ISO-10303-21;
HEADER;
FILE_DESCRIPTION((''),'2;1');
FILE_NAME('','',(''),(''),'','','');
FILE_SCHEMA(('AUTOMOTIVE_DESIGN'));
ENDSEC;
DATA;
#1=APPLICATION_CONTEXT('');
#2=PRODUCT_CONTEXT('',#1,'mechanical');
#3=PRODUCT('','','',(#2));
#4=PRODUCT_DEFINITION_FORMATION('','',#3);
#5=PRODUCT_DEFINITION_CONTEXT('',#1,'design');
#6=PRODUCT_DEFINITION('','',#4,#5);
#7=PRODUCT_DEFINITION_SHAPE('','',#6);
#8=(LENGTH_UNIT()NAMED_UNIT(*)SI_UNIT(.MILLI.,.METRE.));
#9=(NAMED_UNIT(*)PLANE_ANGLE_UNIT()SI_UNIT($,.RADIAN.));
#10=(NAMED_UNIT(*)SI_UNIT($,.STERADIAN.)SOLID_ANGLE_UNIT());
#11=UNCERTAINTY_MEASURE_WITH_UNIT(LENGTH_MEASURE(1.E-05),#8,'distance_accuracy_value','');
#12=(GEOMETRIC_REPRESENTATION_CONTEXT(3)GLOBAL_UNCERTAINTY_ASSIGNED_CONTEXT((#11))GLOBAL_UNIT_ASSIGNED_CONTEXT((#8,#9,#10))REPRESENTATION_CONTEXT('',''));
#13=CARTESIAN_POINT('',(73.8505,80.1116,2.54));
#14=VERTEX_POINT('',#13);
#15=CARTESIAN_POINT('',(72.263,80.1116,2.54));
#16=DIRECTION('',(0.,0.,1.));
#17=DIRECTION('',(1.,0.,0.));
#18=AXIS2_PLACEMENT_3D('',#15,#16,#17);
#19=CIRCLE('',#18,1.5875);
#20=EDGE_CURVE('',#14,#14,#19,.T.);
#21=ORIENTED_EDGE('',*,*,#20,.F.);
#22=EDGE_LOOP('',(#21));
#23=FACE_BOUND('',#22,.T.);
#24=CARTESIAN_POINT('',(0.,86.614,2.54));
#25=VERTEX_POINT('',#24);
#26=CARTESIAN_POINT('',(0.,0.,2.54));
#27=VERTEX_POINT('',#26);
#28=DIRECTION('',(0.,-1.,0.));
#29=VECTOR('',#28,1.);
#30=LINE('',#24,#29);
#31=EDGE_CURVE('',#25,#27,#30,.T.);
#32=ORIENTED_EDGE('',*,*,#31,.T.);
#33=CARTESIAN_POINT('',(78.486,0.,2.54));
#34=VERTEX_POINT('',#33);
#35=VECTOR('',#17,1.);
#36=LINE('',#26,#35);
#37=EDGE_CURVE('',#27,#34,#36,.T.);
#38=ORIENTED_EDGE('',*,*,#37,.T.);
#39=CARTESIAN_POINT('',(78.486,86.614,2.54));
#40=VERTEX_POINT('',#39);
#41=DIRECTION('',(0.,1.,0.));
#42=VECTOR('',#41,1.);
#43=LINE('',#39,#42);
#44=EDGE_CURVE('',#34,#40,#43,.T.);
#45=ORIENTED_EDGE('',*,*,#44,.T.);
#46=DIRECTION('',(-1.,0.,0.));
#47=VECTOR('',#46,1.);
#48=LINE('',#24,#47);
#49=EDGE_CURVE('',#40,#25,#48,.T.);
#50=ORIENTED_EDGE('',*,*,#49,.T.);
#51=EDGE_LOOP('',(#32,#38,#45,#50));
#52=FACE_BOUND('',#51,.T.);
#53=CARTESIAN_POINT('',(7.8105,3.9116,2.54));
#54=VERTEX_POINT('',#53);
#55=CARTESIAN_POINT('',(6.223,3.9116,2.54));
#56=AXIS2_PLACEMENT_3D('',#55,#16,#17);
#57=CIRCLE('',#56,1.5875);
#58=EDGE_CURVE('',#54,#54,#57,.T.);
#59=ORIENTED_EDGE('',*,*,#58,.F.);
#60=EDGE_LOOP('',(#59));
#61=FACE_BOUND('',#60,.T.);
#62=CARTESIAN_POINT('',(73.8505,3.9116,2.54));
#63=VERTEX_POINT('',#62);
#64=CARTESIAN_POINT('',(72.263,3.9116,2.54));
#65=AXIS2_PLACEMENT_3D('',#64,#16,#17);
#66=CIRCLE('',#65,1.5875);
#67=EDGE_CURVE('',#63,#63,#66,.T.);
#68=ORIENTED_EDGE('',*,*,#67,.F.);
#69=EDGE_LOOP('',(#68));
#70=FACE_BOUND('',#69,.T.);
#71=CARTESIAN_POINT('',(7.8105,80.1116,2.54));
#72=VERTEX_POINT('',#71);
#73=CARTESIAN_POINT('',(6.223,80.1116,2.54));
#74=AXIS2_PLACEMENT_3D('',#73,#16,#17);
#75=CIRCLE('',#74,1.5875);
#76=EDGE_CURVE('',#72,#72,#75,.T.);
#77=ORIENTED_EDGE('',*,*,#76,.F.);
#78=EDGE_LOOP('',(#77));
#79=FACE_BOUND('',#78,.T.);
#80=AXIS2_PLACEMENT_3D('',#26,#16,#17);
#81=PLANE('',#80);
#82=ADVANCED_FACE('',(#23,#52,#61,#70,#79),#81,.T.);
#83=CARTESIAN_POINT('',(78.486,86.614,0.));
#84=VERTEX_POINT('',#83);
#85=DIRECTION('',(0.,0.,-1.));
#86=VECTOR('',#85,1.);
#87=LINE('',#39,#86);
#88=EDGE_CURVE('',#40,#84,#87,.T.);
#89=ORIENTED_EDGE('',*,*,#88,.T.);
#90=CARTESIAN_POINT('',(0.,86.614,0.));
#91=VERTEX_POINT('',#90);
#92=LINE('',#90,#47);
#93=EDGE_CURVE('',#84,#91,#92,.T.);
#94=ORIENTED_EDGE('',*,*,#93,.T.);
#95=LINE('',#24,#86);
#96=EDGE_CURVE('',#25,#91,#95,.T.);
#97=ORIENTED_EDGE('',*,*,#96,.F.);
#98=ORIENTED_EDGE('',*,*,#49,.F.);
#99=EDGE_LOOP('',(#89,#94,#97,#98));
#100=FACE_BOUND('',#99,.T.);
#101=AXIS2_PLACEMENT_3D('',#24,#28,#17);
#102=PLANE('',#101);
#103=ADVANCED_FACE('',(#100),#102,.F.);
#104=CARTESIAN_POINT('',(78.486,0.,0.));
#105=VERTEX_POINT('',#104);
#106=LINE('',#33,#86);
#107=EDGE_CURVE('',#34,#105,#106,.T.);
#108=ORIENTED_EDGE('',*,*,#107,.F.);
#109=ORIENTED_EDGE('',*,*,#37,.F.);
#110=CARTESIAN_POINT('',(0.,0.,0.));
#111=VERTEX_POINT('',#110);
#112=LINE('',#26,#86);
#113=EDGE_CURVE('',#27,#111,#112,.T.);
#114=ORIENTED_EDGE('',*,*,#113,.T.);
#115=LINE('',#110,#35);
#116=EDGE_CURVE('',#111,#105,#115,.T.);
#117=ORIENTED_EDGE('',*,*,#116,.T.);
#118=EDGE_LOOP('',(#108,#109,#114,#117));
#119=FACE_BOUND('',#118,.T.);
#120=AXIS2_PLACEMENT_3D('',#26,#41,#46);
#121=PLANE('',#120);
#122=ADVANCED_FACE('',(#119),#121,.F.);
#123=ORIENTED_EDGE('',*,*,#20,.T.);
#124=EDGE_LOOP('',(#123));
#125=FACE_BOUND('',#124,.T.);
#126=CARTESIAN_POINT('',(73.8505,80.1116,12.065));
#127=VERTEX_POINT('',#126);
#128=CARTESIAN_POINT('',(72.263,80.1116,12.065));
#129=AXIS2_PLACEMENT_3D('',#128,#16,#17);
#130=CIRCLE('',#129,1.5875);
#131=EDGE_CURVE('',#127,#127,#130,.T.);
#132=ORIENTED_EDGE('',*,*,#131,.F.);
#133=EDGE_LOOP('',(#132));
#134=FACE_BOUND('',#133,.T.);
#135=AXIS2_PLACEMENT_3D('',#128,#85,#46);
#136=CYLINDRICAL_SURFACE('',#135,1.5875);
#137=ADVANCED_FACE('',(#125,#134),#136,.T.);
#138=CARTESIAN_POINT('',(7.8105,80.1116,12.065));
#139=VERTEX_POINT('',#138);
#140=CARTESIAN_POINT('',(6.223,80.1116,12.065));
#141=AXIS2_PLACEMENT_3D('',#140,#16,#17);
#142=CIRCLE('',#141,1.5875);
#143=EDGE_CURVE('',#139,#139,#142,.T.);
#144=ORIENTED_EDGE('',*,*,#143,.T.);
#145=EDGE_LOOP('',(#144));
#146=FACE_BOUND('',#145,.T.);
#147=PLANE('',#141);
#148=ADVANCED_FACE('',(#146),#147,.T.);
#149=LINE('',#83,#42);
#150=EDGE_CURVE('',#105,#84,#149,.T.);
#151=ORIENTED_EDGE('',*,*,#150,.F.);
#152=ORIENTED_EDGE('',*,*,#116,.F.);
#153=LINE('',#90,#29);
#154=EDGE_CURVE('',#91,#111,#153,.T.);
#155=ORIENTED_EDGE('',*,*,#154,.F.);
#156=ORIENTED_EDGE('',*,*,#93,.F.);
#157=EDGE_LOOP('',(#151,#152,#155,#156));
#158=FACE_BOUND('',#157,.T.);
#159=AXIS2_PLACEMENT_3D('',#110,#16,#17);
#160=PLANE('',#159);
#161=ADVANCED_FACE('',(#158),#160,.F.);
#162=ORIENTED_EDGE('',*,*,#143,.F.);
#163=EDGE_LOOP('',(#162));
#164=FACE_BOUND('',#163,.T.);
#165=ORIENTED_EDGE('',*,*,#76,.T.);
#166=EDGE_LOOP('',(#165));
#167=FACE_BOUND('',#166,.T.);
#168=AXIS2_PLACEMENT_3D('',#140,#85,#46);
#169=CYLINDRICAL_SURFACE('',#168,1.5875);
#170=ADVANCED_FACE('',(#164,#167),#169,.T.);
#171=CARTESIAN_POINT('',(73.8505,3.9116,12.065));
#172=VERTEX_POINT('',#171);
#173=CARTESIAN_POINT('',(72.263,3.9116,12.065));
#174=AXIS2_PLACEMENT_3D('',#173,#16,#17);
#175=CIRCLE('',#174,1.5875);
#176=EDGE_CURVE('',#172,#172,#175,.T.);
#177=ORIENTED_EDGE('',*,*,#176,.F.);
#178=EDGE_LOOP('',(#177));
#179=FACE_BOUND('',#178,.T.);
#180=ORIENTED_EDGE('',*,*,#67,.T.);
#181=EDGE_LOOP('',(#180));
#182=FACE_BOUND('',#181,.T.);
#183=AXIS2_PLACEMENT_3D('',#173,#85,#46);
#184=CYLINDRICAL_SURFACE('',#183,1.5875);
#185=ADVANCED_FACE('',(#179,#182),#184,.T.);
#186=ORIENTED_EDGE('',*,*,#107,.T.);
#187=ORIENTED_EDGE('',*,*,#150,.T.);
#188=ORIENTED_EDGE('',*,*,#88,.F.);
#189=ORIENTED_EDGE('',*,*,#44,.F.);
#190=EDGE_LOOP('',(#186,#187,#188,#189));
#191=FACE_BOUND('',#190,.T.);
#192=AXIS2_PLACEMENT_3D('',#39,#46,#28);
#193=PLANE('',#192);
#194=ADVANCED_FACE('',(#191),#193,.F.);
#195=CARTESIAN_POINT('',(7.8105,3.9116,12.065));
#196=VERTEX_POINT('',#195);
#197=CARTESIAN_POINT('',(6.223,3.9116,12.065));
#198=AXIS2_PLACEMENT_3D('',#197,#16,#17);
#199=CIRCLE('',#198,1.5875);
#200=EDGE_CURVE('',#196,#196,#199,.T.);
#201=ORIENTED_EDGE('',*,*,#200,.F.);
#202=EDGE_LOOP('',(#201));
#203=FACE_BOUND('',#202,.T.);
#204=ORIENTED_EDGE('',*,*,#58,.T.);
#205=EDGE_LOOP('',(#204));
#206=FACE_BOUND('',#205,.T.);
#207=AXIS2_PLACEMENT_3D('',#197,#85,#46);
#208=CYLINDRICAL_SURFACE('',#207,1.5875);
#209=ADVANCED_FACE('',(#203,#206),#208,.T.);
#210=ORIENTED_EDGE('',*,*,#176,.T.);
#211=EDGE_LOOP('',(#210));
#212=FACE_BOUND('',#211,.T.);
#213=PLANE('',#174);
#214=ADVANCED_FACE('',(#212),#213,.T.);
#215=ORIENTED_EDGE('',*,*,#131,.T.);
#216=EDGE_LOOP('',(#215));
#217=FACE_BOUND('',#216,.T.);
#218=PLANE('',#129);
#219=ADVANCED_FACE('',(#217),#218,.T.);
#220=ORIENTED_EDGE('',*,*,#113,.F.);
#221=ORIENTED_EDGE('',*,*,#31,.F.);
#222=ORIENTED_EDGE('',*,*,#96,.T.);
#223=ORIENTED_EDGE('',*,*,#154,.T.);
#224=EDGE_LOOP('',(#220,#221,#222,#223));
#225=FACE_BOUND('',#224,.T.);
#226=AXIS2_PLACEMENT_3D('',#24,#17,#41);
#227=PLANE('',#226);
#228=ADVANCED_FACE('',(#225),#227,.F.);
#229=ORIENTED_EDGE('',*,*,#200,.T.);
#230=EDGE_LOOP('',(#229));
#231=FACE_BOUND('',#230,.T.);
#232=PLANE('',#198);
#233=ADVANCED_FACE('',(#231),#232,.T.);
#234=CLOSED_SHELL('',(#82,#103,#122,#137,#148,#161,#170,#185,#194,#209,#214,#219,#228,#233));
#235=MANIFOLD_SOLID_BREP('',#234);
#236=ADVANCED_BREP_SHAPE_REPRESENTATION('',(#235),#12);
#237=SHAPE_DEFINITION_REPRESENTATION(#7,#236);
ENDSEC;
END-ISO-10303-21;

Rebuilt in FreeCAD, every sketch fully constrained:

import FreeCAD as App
import Part
import Sketcher
Q = App.Units.Quantity


def add_polygon(sketch, points):
    """Adds a closed chain of lines whose ends are joined by coincident constraints."""
    first, n = sketch.GeometryCount, len(points)
    for a, b in zip(points, points[1:] + points[:1]):
        sketch.addGeometry(Part.LineSegment(App.Vector(*a, 0), App.Vector(*b, 0)), False)
    for i in range(n):
        sketch.addConstraint(Sketcher.Constraint("Coincident", first + i, 2, first + (i + 1) % n, 1))

doc = App.newDocument("Part")
body = doc.addObject("PartDesign::Body", "Body")

sketch1 = body.newObject("Sketcher::SketchObject", "Sketch")
sketch1.AttachmentSupport = (doc.getObject("XY_Plane"), [""])
sketch1.MapMode = "FlatFace"
add_polygon(sketch1, [(0, 87), (0, 0), (78, 0), (78, 87)])
sketch1.addConstraint([
    Sketcher.Constraint("Vertical", 0),
    Sketcher.Constraint("Horizontal", 1),
    Sketcher.Constraint("Vertical", 2),
    Sketcher.Constraint("Horizontal", 3),
    Sketcher.Constraint("Coincident", 0, 2, -1, 1),
    Sketcher.Constraint("DistanceX", 1, 1, 1, 2, Q("3.09 in")),
    Sketcher.Constraint("DistanceY", 0, 2, 0, 1, Q("3.41 in")),
])
pad1 = body.newObject("PartDesign::Pad", "Pad")
pad1.Profile = sketch1
pad1.Length = Q("0.1 in")

sketch2 = body.newObject("Sketcher::SketchObject", "Sketch001")
sketch2.AttachmentSupport = (doc.getObject("XY_Plane"), [""])
sketch2.MapMode = "FlatFace"
sketch2.AttachmentOffset = App.Placement(App.Vector(0, 0, 0.1 * 25.4), App.Rotation())
sketch2.addGeometry([
    Part.Circle(App.Vector(6.2, 80.1, 0), App.Vector(0, 0, 1), 1.6),
    Part.Circle(App.Vector(72.3, 80.1, 0), App.Vector(0, 0, 1), 1.6),
    Part.Circle(App.Vector(72.3, 3.9, 0), App.Vector(0, 0, 1), 1.6),
    Part.Circle(App.Vector(6.2, 3.9, 0), App.Vector(0, 0, 1), 1.6),
], False)
sketch2.addConstraint([
    Sketcher.Constraint("Equal", 0, 1),
    Sketcher.Constraint("Equal", 1, 2),
    Sketcher.Constraint("Equal", 2, 3),
    Sketcher.Constraint("Horizontal", 0, 3, 1, 3),
    Sketcher.Constraint("Horizontal", 2, 3, 3, 3),
    Sketcher.Constraint("Vertical", 1, 3, 2, 3),
    Sketcher.Constraint("Vertical", 0, 3, 3, 3),
    Sketcher.Constraint("Diameter", 0, Q("0.125 in")),
    Sketcher.Constraint("DistanceY", 2, 3, 1, 3, Q("3 in")),
    Sketcher.Constraint("DistanceX", 0, 3, 1, 3, Q("2.6 in")),
    Sketcher.Constraint("DistanceX", -1, 1, 0, 3, Q("0.245 in")),
    Sketcher.Constraint("DistanceY", -1, 1, 0, 3, Q("3.154 in")),
])
pad2 = body.newObject("PartDesign::Pad", "Pad001")
pad2.Profile = sketch2
pad2.Length = Q("0.375 in")

doc.recompute()
